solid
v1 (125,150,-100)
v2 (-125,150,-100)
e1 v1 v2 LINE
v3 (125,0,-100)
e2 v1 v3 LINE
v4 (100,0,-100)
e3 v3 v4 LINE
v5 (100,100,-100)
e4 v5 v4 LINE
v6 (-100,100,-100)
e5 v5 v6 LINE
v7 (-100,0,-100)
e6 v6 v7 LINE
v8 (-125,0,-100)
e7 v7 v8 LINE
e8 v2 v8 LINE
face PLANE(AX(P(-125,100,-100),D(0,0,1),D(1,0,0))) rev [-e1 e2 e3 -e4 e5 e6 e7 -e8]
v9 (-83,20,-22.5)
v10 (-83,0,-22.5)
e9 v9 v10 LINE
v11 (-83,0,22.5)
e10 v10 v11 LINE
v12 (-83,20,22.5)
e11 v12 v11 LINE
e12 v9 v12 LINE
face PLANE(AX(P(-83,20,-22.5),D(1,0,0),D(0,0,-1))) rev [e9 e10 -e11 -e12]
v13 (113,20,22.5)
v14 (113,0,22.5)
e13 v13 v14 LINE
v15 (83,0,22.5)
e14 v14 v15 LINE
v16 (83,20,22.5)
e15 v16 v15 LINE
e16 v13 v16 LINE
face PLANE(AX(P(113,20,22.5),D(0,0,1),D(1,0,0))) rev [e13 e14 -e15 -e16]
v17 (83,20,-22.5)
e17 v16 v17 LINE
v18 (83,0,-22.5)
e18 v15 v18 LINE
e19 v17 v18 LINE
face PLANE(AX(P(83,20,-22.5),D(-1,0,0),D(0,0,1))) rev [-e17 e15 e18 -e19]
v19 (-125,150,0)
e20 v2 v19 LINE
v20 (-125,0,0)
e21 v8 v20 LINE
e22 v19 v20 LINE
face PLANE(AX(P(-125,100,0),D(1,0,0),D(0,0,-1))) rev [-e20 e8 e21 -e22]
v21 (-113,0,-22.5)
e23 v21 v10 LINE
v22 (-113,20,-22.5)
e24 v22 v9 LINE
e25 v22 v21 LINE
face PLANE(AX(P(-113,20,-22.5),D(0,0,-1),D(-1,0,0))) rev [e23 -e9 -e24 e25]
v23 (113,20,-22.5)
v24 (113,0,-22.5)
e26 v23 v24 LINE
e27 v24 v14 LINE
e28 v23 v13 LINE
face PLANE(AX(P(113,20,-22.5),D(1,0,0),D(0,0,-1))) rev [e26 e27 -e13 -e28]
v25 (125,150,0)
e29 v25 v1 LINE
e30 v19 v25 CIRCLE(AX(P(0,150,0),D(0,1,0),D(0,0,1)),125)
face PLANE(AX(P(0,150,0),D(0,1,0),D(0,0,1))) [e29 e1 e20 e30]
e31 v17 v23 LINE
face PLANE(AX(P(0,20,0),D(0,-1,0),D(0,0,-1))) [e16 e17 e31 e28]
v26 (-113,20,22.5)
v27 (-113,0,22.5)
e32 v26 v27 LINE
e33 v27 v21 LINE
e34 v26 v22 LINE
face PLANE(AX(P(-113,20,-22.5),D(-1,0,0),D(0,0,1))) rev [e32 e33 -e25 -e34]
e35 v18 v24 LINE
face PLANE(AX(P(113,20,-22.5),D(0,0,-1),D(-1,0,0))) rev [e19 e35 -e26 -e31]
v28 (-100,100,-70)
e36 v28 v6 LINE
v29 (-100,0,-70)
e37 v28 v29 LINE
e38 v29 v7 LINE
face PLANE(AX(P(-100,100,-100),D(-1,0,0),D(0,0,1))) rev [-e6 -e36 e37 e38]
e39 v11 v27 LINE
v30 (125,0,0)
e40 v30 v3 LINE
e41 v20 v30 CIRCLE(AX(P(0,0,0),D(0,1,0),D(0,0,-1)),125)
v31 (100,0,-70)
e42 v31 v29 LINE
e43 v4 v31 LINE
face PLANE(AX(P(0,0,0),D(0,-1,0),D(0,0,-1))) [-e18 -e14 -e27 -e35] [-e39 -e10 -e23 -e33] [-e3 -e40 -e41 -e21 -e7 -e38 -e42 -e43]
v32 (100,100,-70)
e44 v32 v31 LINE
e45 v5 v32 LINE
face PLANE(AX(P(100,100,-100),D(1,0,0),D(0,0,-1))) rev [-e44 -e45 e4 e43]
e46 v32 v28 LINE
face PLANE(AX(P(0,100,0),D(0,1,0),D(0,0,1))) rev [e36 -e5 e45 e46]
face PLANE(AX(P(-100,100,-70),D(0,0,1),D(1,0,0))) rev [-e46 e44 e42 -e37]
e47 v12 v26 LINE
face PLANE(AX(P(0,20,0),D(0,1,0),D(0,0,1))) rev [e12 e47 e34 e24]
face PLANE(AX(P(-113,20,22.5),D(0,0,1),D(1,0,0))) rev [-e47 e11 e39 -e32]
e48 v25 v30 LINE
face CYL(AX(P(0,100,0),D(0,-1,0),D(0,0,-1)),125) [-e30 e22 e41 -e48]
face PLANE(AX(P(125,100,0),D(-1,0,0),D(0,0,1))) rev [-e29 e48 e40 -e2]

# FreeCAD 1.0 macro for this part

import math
import FreeCAD as App
import Part
import Sketcher
from FreeCAD import Vector
Q = App.Units.Quantity


def add_polygon(sketch, points):
    """Adds a closed chain of lines whose ends are joined by coincident constraints."""
    first, n = sketch.GeometryCount, len(points)
    for a, b in zip(points, points[1:] + points[:1]):
        sketch.addGeometry(Part.LineSegment(App.Vector(*a, 0), App.Vector(*b, 0)), False)
    for i in range(n):
        sketch.addConstraint(Sketcher.Constraint("Coincident", first + i, 2, first + (i + 1) % n, 1))

doc = App.newDocument("Part")
body = doc.addObject("PartDesign::Body", "Body")

# Sketch on XZ plane
sketch1 = body.newObject("Sketcher::SketchObject", "Sketch")
sketch1.AttachmentSupport = (doc.getObject("XZ_Plane"), [""])
sketch1.MapMode = "FlatFace"
sketch1.addGeometry(Part.LineSegment(Vector(-125, -100, 0), Vector(-125, 0, 0)), False)
sketch1.addGeometry(Part.ArcOfCircle(Part.Circle(Vector(0, 0, 0), Vector(0, 0, 1), 125), math.radians(0), math.radians(180)), False)
sketch1.addGeometry(Part.LineSegment(Vector(125, 0, 0), Vector(125, -100, 0)), False)
sketch1.addGeometry(Part.LineSegment(Vector(125, -100, 0), Vector(100, -100, 0)), False)
sketch1.addGeometry(Part.LineSegment(Vector(100, -100, 0), Vector(100, -70, 0)), False)
sketch1.addGeometry(Part.LineSegment(Vector(100, -70, 0), Vector(-100, -70, 0)), False)
sketch1.addGeometry(Part.LineSegment(Vector(-100, -70, 0), Vector(-100, -100, 0)), False)
sketch1.addGeometry(Part.LineSegment(Vector(-100, -100, 0), Vector(-125, -100, 0)), False)
sketch1.addConstraint(Sketcher.Constraint("Tangent", 0, 2, 1, 2))
sketch1.addConstraint(Sketcher.Constraint("Tangent", 1, 1, 2, 1))
sketch1.addConstraint(Sketcher.Constraint("Coincident", 2, 2, 3, 1))
sketch1.addConstraint(Sketcher.Constraint("Coincident", 3, 2, 4, 1))
sketch1.addConstraint(Sketcher.Constraint("Coincident", 4, 2, 5, 1))
sketch1.addConstraint(Sketcher.Constraint("Coincident", 5, 2, 6, 1))
sketch1.addConstraint(Sketcher.Constraint("Coincident", 6, 2, 7, 1))
sketch1.addConstraint(Sketcher.Constraint("Coincident", 7, 2, 0, 1))
sketch1.addConstraint(Sketcher.Constraint("Vertical", 0))
sketch1.addConstraint(Sketcher.Constraint("Vertical", 2))
sketch1.addConstraint(Sketcher.Constraint("Horizontal", 3))
sketch1.addConstraint(Sketcher.Constraint("Vertical", 4))
sketch1.addConstraint(Sketcher.Constraint("Horizontal", 5))
sketch1.addConstraint(Sketcher.Constraint("Vertical", 6))
sketch1.addConstraint(Sketcher.Constraint("Horizontal", 7))
sketch1.addConstraint(Sketcher.Constraint("Coincident", 1, 3, -1, 1))
sketch1.addConstraint(Sketcher.Constraint("Symmetric", 3, 2, 6, 2, -2))
sketch1.addConstraint(Sketcher.Constraint("Radius", 1, Q("125 mm")))
sketch1.addConstraint(Sketcher.Constraint("DistanceX", 3, 2, 3, 1, Q("25 mm")))
sketch1.addConstraint(Sketcher.Constraint("DistanceY", 0, 1, 0, 2, Q("100 mm")))
sketch1.addConstraint(Sketcher.Constraint("DistanceY", 4, 1, 4, 2, Q("30 mm")))
pad1 = body.newObject("PartDesign::Pad", "Pad")
pad1.Profile = sketch1
pad1.Length = 100
pad1.Reversed = True

# Sketch on XZ plane
sketch2 = body.newObject("Sketcher::SketchObject", "Sketch001")
sketch2.AttachmentSupport = (doc.getObject("XZ_Plane"), [""])
sketch2.MapMode = "FlatFace"
sketch2.AttachmentOffset = App.Placement(Vector(0, 0, -100), App.Rotation())
sketch2.addGeometry(Part.LineSegment(Vector(125, 0, 0), Vector(125, -100, 0)), False)
sketch2.addGeometry(Part.LineSegment(Vector(125, -100, 0), Vector(-125, -100, 0)), False)
sketch2.addGeometry(Part.LineSegment(Vector(-125, -100, 0), Vector(-125, 0, 0)), False)
sketch2.addGeometry(Part.ArcOfCircle(Part.Circle(Vector(0, 0, 0), Vector(0, 0, 1), 125), math.radians(0), math.radians(180)), False)
sketch2.addConstraint(Sketcher.Constraint("Coincident", 0, 2, 1, 1))
sketch2.addConstraint(Sketcher.Constraint("Coincident", 1, 2, 2, 1))
sketch2.addConstraint(Sketcher.Constraint("Tangent", 2, 2, 3, 2))
sketch2.addConstraint(Sketcher.Constraint("Tangent", 3, 1, 0, 1))
sketch2.addConstraint(Sketcher.Constraint("Vertical", 0))
sketch2.addConstraint(Sketcher.Constraint("Horizontal", 1))
sketch2.addConstraint(Sketcher.Constraint("Vertical", 2))
sketch2.addConstraint(Sketcher.Constraint("Coincident", 3, 3, -1, 1))
sketch2.addConstraint(Sketcher.Constraint("Radius", 3, Q("125 mm")))
sketch2.addConstraint(Sketcher.Constraint("DistanceY", 0, 2, 0, 1, Q("100 mm")))
pad2 = body.newObject("PartDesign::Pad", "Pad001")
pad2.Profile = sketch2
pad2.Length = 50
pad2.Reversed = True

# Sketch on XZ plane
sketch3 = body.newObject("Sketcher::SketchObject", "Sketch002")
sketch3.AttachmentSupport = (doc.getObject("XZ_Plane"), [""])
sketch3.MapMode = "FlatFace"
add_polygon(sketch3, [(-113, 22.5), (-113, -22.5), (-83, -22.5), (-83, 22.5)])  # lines 0-3
add_polygon(sketch3, [(83, 22.5), (83, -22.5), (113, -22.5), (113, 22.5)])  # lines 4-7
sketch3.addConstraint(Sketcher.Constraint("Vertical", 0))
sketch3.addConstraint(Sketcher.Constraint("Horizontal", 1))
sketch3.addConstraint(Sketcher.Constraint("Vertical", 2))
sketch3.addConstraint(Sketcher.Constraint("Horizontal", 3))
sketch3.addConstraint(Sketcher.Constraint("Vertical", 4))
sketch3.addConstraint(Sketcher.Constraint("Horizontal", 5))
sketch3.addConstraint(Sketcher.Constraint("Vertical", 6))
sketch3.addConstraint(Sketcher.Constraint("Horizontal", 7))
sketch3.addConstraint(Sketcher.Constraint("Symmetric", 2, 2, 4, 2, -1, 1))
sketch3.addConstraint(Sketcher.Constraint("Symmetric", 0, 2, 6, 2, -1, 1))
sketch3.addConstraint(Sketcher.Constraint("Horizontal", 1, 2, 4, 2))
sketch3.addConstraint(Sketcher.Constraint("DistanceX", 1, 1, 1, 2, Q("30 mm")))
sketch3.addConstraint(Sketcher.Constraint("DistanceY", 0, 2, 0, 1, Q("45 mm")))
sketch3.addConstraint(Sketcher.Constraint("DistanceX", 0, 2, -1, 1, Q("113 mm")))
pocket1 = body.newObject("PartDesign::Pocket", "Pocket")
pocket1.Profile = sketch3
pocket1.Length = 20

doc.recompute()
